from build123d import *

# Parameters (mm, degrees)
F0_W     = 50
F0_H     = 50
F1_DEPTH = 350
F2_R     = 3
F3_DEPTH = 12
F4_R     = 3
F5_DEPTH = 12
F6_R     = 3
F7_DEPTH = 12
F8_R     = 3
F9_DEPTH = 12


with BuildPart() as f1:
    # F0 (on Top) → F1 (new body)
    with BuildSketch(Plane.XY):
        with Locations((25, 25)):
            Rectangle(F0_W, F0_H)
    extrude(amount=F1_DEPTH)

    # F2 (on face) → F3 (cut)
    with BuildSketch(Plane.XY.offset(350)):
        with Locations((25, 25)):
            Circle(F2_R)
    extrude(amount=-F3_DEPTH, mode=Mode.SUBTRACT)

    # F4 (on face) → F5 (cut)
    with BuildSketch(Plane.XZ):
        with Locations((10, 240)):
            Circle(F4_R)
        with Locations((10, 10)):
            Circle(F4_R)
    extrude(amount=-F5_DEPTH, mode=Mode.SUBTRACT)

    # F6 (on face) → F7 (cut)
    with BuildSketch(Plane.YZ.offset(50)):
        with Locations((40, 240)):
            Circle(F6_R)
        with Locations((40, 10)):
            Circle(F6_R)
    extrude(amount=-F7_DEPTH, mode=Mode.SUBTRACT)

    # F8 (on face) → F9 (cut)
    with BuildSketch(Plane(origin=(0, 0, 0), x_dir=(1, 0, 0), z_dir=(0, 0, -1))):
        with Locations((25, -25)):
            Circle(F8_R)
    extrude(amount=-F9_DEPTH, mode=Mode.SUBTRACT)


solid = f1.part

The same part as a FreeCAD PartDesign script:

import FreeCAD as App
import Part
import Sketcher

V = App.Vector
Q = App.Units.Quantity

doc = App.newDocument("Part")
params = doc.addObject("Spreadsheet::Sheet", "Params")
for row, (alias, value) in enumerate([
    ("sketch1_width", "50 mm"),
    ("pad1_length", "350 mm"),
    ("sketch2_diameter", "6 mm"),
    ("pocket1_length", "12 mm"),
    ("sketch3_diameter", "6 mm"),
    ("pocket2_length", "12 mm"),
    ("sketch4_diameter", "6 mm"),
    ("pocket3_length", "12 mm"),
    ("sketch5_diameter", "6 mm"),
    ("pocket4_length", "12 mm"),
], start=1):
    params.set(f"A{row}", alias)
    params.set(f"B{row}", "=" + value)
    params.setAlias(f"B{row}", alias)

body = doc.addObject("PartDesign::Body", "Body")

sketch1 = body.newObject("Sketcher::SketchObject", "Sketch")
sketch1.AttachmentSupport = (doc.getObject("XY_Plane"), [""])
sketch1.MapMode = "FlatFace"
sketch1.addGeometry(Part.LineSegment(V(0, 50, 0), V(0, 0, 0)), False)
sketch1.addGeometry(Part.LineSegment(V(0, 0, 0), V(50, 0, 0)), False)
sketch1.addGeometry(Part.LineSegment(V(50, 0, 0), V(50, 50, 0)), False)
sketch1.addGeometry(Part.LineSegment(V(50, 50, 0), V(0, 50, 0)), False)
sketch1.addConstraint(Sketcher.Constraint("Coincident", 0, 2, 1, 1))
sketch1.addConstraint(Sketcher.Constraint("Coincident", 1, 2, 2, 1))
sketch1.addConstraint(Sketcher.Constraint("Coincident", 2, 2, 3, 1))
sketch1.addConstraint(Sketcher.Constraint("Coincident", 3, 2, 0, 1))
sketch1.addConstraint(Sketcher.Constraint("Vertical", 0))
sketch1.addConstraint(Sketcher.Constraint("Horizontal", 1))
sketch1.addConstraint(Sketcher.Constraint("Vertical", 2))
sketch1.addConstraint(Sketcher.Constraint("Horizontal", 3))
sketch1.addConstraint(Sketcher.Constraint("Coincident", 0, 2, -1, 1))
sketch1.addConstraint(Sketcher.Constraint("Equal", 3, 0))
sketch1.addConstraint(Sketcher.Constraint("DistanceX", 1, 1, 1, 2, Q("50 mm")))
sketch1.setExpression("Constraints[10]", "Params.sketch1_width")
pad1 = body.newObject("PartDesign::Pad", "Pad")
pad1.Profile = sketch1
pad1.setExpression("Length", "Params.pad1_length")

sketch2 = body.newObject("Sketcher::SketchObject", "Sketch001")
sketch2.AttachmentSupport = (doc.getObject("XY_Plane"), [""])
sketch2.MapMode = "FlatFace"
sketch2.AttachmentOffset = App.Placement(V(0, 0, 350), App.Rotation())
sketch2.addGeometry(Part.Circle(V(25, 25, 0), V(0, 0, 1), 3), False)
sketch2.addConstraint(Sketcher.Constraint("Diameter", 0, Q("6 mm")))
sketch2.addConstraint(Sketcher.Constraint("DistanceX", -1, 1, 0, 3, Q("25 mm")))
sketch2.addConstraint(Sketcher.Constraint("DistanceY", -1, 1, 0, 3, Q("25 mm")))
sketch2.setExpression("Constraints[0]", "Params.sketch2_diameter")
pocket1 = body.newObject("PartDesign::Pocket", "Pocket")
pocket1.Profile = sketch2
pocket1.setExpression("Length", "Params.pocket1_length")

sketch3 = body.newObject("Sketcher::SketchObject", "Sketch002")
sketch3.AttachmentSupport = (doc.getObject("XZ_Plane"), [""])
sketch3.MapMode = "FlatFace"
sketch3.addGeometry(Part.Circle(V(10, 240, 0), V(0, 0, 1), 3), False)
sketch3.addGeometry(Part.Circle(V(10, 10, 0), V(0, 0, 1), 3), False)
sketch3.addConstraint(Sketcher.Constraint("Equal", 0, 1))
sketch3.addConstraint(Sketcher.Constraint("Vertical", 0, 3, 1, 3))
sketch3.addConstraint(Sketcher.Constraint("Diameter", 0, Q("6 mm")))
sketch3.addConstraint(Sketcher.Constraint("DistanceX", -1, 1, 0, 3, Q("10 mm")))
sketch3.addConstraint(Sketcher.Constraint("DistanceY", -1, 1, 0, 3, Q("240 mm")))
sketch3.addConstraint(Sketcher.Constraint("DistanceY", -1, 1, 1, 3, Q("10 mm")))
sketch3.setExpression("Constraints[2]", "Params.sketch3_diameter")
pocket2 = body.newObject("PartDesign::Pocket", "Pocket001")
pocket2.Profile = sketch3
pocket2.setExpression("Length", "Params.pocket2_length")

sketch4 = body.newObject("Sketcher::SketchObject", "Sketch003")
sketch4.AttachmentSupport = (doc.getObject("YZ_Plane"), [""])
sketch4.MapMode = "FlatFace"
sketch4.AttachmentOffset = App.Placement(V(0, 0, 50), App.Rotation())
sketch4.addGeometry(Part.Circle(V(40, 240, 0), V(0, 0, 1), 3), False)
sketch4.addGeometry(Part.Circle(V(40, 10, 0), V(0, 0, 1), 3), False)
sketch4.addConstraint(Sketcher.Constraint("Equal", 0, 1))
sketch4.addConstraint(Sketcher.Constraint("Vertical", 0, 3, 1, 3))
sketch4.addConstraint(Sketcher.Constraint("Diameter", 0, Q("6 mm")))
sketch4.addConstraint(Sketcher.Constraint("DistanceX", -1, 1, 0, 3, Q("40 mm")))
sketch4.addConstraint(Sketcher.Constraint("DistanceY", -1, 1, 0, 3, Q("240 mm")))
sketch4.addConstraint(Sketcher.Constraint("DistanceY", -1, 1, 1, 3, Q("10 mm")))
sketch4.setExpression("Constraints[2]", "Params.sketch4_diameter")
pocket3 = body.newObject("PartDesign::Pocket", "Pocket002")
pocket3.Profile = sketch4
pocket3.setExpression("Length", "Params.pocket3_length")

sketch5 = body.newObject("Sketcher::SketchObject", "Sketch004")
sketch5.AttachmentSupport = (doc.getObject("XY_Plane"), [""])
sketch5.MapMode = "FlatFace"
sketch5.addGeometry(Part.Circle(V(25, 25, 0), V(0, 0, 1), 3), False)
sketch5.addConstraint(Sketcher.Constraint("Diameter", 0, Q("6 mm")))
sketch5.addConstraint(Sketcher.Constraint("DistanceX", -1, 1, 0, 3, Q("25 mm")))
sketch5.addConstraint(Sketcher.Constraint("DistanceY", -1, 1, 0, 3, Q("25 mm")))
sketch5.setExpression("Constraints[0]", "Params.sketch5_diameter")
pocket4 = body.newObject("PartDesign::Pocket", "Pocket003")
pocket4.Profile = sketch5
pocket4.setExpression("Length", "Params.pocket4_length")
pocket4.Reversed = True

doc.recompute()
